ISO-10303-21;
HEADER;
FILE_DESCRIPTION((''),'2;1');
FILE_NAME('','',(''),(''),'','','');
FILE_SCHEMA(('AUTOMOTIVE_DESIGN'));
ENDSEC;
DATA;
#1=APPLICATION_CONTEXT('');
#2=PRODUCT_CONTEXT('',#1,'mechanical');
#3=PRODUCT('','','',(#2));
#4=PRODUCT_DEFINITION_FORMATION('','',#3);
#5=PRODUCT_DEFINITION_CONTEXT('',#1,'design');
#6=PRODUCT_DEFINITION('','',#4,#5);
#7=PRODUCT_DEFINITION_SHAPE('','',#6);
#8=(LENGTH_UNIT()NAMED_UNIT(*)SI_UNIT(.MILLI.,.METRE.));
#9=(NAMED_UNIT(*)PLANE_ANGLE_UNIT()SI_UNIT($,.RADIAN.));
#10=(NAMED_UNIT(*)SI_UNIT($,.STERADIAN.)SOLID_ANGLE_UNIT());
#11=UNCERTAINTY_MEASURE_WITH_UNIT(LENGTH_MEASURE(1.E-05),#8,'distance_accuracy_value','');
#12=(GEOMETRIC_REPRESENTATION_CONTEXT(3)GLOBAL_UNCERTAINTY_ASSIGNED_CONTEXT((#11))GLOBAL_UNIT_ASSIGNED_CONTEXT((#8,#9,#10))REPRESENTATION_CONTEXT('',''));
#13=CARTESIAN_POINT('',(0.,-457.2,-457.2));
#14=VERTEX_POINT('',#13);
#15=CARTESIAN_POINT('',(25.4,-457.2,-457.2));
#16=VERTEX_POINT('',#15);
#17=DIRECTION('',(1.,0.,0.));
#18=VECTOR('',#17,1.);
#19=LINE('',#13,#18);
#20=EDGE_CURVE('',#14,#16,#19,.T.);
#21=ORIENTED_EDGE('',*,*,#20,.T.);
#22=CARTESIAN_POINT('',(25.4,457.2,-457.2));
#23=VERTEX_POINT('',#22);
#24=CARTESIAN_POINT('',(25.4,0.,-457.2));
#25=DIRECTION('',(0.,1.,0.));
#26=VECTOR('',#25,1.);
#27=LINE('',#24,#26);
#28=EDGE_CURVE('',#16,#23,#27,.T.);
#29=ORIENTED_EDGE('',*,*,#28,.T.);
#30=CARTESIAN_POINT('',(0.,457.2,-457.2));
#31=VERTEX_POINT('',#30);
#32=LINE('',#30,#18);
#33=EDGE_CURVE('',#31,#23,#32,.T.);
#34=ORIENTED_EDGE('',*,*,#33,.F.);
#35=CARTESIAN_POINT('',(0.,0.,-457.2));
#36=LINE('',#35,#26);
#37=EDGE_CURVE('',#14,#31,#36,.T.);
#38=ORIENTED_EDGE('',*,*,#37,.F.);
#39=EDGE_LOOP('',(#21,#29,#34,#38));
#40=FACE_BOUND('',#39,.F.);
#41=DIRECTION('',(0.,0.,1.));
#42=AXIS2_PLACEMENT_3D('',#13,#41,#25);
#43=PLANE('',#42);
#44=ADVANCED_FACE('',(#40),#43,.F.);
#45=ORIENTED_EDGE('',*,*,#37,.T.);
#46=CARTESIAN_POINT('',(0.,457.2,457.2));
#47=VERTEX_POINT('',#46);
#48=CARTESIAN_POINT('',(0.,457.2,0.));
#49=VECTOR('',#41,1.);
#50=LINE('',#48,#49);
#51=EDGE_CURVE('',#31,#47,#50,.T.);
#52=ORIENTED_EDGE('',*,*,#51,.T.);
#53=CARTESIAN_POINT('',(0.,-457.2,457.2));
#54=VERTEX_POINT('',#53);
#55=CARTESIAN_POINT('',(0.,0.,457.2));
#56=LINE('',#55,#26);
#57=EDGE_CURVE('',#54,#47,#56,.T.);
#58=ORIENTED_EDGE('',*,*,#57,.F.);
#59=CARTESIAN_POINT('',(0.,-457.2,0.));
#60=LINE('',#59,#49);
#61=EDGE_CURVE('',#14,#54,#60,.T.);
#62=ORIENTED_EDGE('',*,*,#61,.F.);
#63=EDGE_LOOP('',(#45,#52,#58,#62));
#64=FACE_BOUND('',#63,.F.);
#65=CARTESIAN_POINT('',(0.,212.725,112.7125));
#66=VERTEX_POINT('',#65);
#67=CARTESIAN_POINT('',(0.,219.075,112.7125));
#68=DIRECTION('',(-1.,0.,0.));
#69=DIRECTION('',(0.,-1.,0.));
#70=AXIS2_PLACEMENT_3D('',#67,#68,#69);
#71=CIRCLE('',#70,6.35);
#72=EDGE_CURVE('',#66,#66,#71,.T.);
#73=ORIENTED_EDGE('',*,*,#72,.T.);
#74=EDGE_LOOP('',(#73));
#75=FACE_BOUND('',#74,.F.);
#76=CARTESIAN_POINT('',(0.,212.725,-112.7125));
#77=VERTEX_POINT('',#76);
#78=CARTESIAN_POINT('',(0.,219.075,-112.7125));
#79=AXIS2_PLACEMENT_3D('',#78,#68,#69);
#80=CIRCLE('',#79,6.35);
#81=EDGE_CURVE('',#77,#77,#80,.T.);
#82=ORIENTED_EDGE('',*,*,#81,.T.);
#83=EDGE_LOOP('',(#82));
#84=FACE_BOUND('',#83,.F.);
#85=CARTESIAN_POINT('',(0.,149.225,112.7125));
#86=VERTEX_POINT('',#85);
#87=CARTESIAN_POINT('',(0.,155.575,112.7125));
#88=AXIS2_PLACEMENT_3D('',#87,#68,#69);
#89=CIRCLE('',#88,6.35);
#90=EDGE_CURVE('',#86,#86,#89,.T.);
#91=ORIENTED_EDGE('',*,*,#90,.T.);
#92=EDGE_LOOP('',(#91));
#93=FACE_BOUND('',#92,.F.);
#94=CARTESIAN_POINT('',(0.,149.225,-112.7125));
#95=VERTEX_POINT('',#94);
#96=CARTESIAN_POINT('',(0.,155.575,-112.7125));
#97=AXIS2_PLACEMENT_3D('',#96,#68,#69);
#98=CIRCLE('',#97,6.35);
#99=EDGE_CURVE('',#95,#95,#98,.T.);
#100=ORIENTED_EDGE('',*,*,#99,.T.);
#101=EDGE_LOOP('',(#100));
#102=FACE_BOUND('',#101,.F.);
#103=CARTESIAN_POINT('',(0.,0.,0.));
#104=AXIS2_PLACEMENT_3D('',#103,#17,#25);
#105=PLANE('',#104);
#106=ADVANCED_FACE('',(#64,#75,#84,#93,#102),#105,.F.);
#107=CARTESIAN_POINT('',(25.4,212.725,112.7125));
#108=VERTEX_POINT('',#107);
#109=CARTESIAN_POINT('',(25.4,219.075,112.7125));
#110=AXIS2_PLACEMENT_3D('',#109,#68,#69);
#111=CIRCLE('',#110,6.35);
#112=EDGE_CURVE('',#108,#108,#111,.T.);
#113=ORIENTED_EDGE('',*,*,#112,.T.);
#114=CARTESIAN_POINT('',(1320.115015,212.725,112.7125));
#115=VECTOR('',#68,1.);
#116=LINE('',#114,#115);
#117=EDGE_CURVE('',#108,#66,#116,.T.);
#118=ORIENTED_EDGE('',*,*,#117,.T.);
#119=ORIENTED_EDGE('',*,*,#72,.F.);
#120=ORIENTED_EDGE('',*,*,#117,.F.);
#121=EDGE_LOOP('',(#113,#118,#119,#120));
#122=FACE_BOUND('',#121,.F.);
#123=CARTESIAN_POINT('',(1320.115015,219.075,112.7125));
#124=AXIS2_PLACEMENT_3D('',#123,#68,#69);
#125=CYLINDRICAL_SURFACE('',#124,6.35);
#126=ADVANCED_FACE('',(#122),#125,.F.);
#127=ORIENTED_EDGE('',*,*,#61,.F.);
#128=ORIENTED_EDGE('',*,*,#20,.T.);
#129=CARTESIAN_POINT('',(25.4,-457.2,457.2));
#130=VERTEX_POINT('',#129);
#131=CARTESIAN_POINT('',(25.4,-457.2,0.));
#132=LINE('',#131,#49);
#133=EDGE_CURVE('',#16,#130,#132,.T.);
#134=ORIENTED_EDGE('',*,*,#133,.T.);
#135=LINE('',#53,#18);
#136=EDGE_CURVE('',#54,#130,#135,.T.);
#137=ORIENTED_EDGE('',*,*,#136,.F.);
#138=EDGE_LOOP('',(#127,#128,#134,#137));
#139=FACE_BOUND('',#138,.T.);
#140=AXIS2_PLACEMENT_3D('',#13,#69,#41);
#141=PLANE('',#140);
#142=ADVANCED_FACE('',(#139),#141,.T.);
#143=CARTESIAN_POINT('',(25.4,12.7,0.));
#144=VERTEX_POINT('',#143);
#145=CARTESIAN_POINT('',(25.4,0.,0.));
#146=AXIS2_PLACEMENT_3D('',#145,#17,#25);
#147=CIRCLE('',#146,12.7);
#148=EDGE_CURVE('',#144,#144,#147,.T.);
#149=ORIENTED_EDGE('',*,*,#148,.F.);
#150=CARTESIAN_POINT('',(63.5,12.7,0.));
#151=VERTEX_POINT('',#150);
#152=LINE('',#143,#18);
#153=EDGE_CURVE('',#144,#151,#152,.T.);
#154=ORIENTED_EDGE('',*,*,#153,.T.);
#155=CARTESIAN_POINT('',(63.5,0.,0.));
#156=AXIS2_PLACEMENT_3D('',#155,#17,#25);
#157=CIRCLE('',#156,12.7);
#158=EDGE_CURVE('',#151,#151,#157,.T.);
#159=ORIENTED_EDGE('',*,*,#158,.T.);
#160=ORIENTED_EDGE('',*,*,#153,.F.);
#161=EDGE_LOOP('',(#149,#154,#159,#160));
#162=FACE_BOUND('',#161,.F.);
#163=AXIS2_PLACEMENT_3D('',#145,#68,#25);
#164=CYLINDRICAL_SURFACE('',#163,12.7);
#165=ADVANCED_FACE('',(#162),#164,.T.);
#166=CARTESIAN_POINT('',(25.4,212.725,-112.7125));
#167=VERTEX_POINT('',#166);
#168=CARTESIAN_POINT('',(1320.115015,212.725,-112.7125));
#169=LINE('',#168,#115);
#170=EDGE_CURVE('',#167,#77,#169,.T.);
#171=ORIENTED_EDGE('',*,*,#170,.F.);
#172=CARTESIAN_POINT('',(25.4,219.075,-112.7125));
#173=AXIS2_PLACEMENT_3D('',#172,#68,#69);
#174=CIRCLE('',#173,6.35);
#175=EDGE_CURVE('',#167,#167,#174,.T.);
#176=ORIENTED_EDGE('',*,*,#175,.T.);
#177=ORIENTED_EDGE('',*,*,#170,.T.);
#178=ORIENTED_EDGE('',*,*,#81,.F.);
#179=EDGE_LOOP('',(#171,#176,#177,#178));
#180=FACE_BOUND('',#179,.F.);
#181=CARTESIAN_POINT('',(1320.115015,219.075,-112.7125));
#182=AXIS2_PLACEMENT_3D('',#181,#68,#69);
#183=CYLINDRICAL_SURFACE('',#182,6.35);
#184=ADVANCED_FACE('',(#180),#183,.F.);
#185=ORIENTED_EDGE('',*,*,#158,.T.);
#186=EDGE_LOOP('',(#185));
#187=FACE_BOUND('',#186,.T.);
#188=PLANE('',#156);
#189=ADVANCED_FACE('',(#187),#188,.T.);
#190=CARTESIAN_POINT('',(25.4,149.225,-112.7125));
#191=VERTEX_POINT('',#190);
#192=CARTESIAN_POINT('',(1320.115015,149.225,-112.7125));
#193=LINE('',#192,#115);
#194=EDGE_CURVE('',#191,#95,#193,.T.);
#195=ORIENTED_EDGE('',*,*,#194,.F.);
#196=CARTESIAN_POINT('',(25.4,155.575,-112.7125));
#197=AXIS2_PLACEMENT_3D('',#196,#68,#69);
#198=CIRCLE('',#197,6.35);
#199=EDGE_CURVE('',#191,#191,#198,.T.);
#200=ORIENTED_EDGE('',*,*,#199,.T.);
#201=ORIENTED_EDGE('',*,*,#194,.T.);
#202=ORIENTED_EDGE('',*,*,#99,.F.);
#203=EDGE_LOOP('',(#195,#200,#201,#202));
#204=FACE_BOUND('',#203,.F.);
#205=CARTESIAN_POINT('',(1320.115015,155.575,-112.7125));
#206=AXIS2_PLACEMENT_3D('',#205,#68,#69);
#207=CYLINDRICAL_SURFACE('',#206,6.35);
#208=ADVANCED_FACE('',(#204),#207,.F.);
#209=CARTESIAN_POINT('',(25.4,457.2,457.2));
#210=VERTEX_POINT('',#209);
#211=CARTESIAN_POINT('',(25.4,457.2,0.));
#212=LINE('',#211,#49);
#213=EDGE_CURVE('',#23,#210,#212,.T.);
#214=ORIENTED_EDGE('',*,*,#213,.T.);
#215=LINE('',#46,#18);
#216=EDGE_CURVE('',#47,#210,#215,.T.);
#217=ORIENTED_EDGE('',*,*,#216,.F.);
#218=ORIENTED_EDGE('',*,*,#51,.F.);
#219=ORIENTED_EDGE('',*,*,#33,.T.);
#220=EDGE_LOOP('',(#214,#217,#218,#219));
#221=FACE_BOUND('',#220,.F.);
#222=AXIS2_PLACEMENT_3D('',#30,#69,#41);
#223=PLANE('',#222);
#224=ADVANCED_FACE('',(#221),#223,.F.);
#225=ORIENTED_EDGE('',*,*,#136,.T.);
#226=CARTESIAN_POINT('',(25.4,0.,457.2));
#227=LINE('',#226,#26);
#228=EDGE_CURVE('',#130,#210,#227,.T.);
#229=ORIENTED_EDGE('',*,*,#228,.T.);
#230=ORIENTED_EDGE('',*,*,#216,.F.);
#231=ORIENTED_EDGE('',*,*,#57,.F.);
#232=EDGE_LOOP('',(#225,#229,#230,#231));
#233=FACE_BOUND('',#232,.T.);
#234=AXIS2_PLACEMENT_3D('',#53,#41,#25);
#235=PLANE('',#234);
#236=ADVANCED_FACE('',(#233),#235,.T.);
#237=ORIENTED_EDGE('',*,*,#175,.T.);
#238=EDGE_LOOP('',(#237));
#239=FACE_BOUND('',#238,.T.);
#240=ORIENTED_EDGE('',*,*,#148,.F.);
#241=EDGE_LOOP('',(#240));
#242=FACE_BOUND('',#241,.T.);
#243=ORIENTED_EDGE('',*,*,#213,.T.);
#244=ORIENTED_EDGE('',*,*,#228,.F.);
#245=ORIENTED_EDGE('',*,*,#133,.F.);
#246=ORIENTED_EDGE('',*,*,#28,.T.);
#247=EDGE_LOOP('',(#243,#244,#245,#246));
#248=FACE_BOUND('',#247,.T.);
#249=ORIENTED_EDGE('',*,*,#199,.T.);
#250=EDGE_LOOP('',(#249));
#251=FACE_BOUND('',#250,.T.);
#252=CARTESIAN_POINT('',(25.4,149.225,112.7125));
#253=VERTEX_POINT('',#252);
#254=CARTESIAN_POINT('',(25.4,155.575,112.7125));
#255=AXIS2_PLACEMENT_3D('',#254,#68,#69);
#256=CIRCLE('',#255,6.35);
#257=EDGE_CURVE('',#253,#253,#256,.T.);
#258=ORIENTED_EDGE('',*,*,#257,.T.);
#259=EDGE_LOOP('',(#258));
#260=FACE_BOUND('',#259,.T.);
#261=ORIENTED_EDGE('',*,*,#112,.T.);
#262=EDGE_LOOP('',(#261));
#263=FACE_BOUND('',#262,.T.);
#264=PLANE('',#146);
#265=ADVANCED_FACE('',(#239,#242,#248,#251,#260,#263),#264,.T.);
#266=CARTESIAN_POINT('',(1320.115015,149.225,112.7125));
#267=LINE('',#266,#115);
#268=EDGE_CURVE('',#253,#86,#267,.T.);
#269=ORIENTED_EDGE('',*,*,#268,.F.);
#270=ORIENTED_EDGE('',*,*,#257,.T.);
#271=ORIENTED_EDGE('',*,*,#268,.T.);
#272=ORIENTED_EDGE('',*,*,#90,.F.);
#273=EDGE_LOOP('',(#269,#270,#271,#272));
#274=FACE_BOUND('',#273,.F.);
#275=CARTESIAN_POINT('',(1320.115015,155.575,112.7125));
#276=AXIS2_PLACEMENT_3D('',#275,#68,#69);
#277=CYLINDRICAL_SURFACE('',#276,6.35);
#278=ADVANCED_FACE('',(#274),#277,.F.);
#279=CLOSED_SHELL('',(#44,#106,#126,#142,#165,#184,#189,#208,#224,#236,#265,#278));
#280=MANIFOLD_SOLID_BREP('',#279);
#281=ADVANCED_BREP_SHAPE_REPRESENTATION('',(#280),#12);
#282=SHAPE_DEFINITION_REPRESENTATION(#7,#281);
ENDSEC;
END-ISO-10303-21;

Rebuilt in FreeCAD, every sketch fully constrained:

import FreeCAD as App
import Part
import Sketcher

V = App.Vector
Q = App.Units.Quantity


def add_polygon(sketch, points):
    """Adds a closed chain of lines whose ends are joined by coincident constraints."""
    first, n = sketch.GeometryCount, len(points)
    for a, b in zip(points, points[1:] + points[:1]):
        sketch.addGeometry(Part.LineSegment(App.Vector(*a, 0), App.Vector(*b, 0)), False)
    for i in range(n):
        sketch.addConstraint(Sketcher.Constraint("Coincident", first + i, 2, first + (i + 1) % n, 1))

doc = App.newDocument("Part")
body = doc.addObject("PartDesign::Body", "Body")

# Sketch on YZ plane
sketch1 = body.newObject("Sketcher::SketchObject", "Sketch")
sketch1.AttachmentSupport = (doc.getObject("YZ_Plane"), [""])
sketch1.MapMode = "FlatFace"
add_polygon(sketch1, [(-457, 457), (-457, -457), (457, -457), (457, 457)])  # lines 0-3
sketch1.addConstraint([
    Sketcher.Constraint("Vertical", 0),
    Sketcher.Constraint("Horizontal", 1),
    Sketcher.Constraint("Vertical", 2),
    Sketcher.Constraint("Horizontal", 3),
    Sketcher.Constraint("Symmetric", 0, 2, 2, 2, -1, 1),
    Sketcher.Constraint("Equal", 3, 0),
    Sketcher.Constraint("DistanceX", 1, 1, 1, 2, Q("36 in")),
])
pad1 = body.newObject("PartDesign::Pad", "Pad")
pad1.Profile = sketch1
pad1.Length = Q("1 in")

# Sketch on YZ plane
sketch2 = body.newObject("Sketcher::SketchObject", "Sketch001")
sketch2.AttachmentSupport = (doc.getObject("YZ_Plane"), [""])
sketch2.MapMode = "FlatFace"
sketch2.AttachmentOffset = App.Placement(V(0, 0, 1 * 25.4), App.Rotation())
sketch2.addGeometry(Part.Circle(V(0, 0, 0), V(0, 0, 1), 13), False)
sketch2.addConstraint([
    Sketcher.Constraint("Coincident", 0, 3, -1, 1),
    Sketcher.Constraint("Diameter", 0, Q("1 in")),
])
pad2 = body.newObject("PartDesign::Pad", "Pad001")
pad2.Profile = sketch2
pad2.Length = Q("1.5 in")

# Sketch on YZ plane
sketch3 = body.newObject("Sketcher::SketchObject", "Sketch002")
sketch3.AttachmentSupport = (doc.getObject("YZ_Plane"), [""])
sketch3.MapMode = "FlatFace"
sketch3.AttachmentOffset = App.Placement(V(0, 0, 1 * 25.4), App.Rotation())
sketch3.addGeometry([
    Part.Circle(V(156, 113, 0), V(0, 0, 1), 6),
    Part.Circle(V(219, 113, 0), V(0, 0, 1), 6),
    Part.Circle(V(156, -113, 0), V(0, 0, 1), 6),
    Part.Circle(V(219, -113, 0), V(0, 0, 1), 6),
], False)
sketch3.addConstraint([
    Sketcher.Constraint("Equal", 0, 1),
    Sketcher.Constraint("Equal", 1, 2),
    Sketcher.Constraint("Equal", 2, 3),
    Sketcher.Constraint("Symmetric", 0, 3, 2, 3, -1),
    Sketcher.Constraint("Symmetric", 1, 3, 3, 3, -1),
    Sketcher.Constraint("Horizontal", 0, 3, 1, 3),
    Sketcher.Constraint("Diameter", 0, Q("0.5 in")),
    Sketcher.Constraint("DistanceX", 0, 3, 1, 3, Q("2.5 in")),
    Sketcher.Constraint("DistanceX", -1, 1, 0, 3, Q("6.125 in")),
    Sketcher.Constraint("DistanceY", -1, 1, 0, 3, Q("4.4375 in")),
])
doc.recompute()
hole = body.newObject("PartDesign::Hole", "Hole")
hole.Profile = sketch3
hole.ThreadType = "None"
hole.Diameter = Q("0.5 in")
hole.DepthType = "ThroughAll"

doc.recompute()
